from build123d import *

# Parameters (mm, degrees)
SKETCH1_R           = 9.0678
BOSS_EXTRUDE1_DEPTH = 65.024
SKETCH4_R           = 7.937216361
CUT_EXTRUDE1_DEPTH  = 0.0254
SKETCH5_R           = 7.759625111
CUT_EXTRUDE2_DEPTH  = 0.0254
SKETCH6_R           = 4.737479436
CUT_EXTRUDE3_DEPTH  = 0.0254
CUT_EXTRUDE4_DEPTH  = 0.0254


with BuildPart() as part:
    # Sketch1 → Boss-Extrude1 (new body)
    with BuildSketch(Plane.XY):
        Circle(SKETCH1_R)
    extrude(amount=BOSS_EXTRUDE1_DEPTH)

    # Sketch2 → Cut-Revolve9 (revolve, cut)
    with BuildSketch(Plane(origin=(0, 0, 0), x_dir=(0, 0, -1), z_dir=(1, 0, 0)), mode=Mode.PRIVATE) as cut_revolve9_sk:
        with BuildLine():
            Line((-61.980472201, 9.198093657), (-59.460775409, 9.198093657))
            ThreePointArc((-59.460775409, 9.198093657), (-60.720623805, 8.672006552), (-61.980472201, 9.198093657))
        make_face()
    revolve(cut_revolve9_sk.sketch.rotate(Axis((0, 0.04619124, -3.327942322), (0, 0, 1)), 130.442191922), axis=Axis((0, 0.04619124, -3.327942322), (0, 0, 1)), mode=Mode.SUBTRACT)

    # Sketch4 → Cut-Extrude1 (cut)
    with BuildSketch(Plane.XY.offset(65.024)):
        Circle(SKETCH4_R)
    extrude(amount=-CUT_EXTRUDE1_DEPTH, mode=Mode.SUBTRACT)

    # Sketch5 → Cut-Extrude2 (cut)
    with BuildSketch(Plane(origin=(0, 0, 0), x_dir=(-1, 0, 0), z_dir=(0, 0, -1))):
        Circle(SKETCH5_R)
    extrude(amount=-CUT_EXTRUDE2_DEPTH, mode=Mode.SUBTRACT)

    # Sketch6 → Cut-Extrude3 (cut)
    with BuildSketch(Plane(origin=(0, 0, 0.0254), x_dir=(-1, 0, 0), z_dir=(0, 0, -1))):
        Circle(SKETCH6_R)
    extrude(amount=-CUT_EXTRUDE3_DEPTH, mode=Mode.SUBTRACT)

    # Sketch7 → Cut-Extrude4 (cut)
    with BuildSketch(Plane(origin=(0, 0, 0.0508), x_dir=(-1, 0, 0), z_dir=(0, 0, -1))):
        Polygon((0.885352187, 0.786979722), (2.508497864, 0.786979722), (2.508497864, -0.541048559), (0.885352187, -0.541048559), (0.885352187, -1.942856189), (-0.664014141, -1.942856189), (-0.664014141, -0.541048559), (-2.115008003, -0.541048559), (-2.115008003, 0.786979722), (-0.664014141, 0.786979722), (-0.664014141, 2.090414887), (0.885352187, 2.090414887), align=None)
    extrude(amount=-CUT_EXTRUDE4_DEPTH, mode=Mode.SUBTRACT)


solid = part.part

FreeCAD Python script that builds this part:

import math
import FreeCAD as App
import Part
import Sketcher
from FreeCAD import Vector
Q = App.Units.Quantity


def add_polygon(sketch, points):
    """Adds a closed chain of lines whose ends are joined by coincident constraints."""
    first, n = sketch.GeometryCount, len(points)
    for a, b in zip(points, points[1:] + points[:1]):
        sketch.addGeometry(Part.LineSegment(App.Vector(*a, 0), App.Vector(*b, 0)), False)
    for i in range(n):
        sketch.addConstraint(Sketcher.Constraint("Coincident", first + i, 2, first + (i + 1) % n, 1))

doc = App.newDocument("Part")
params = doc.addObject("Spreadsheet::Sheet", "Params")
for row, (alias, value) in enumerate([
    ("sketch1_diameter", "0.714 in"),
    ("pad1_length", "2.56 in"),
    ("groove_angle", "360 deg"),
    ("pocket1_length", "0.001 in"),
    ("pocket2_length", "0.001 in"),
    ("pocket3_length", "0.001 in"),
    ("pocket4_length", "0.001 in"),
], start=1):
    params.set(f"A{row}", alias)
    params.set(f"B{row}", "=" + value)
    params.setAlias(f"B{row}", alias)

body = doc.addObject("PartDesign::Body", "Body")

# Sketch on XY plane
sketch1 = body.newObject("Sketcher::SketchObject", "Sketch")
sketch1.AttachmentSupport = (doc.getObject("XY_Plane"), [""])
sketch1.MapMode = "FlatFace"
sketch1.addGeometry(Part.Circle(Vector(0, 0, 0), Vector(0, 0, 1), 9), False)
sketch1.addConstraint([
    Sketcher.Constraint("Coincident", 0, 3, -1, 1),
    Sketcher.Constraint("Diameter", 0, Q("0.714 in")),
])
sketch1.setExpression("Constraints[1]", "Params.sketch1_diameter")
pad1 = body.newObject("PartDesign::Pad", "Pad")
pad1.Profile = sketch1
pad1.setExpression("Length", "Params.pad1_length")

# Sketch on YZ plane
sketch2 = body.newObject("Sketcher::SketchObject", "Sketch001")
sketch2.AttachmentSupport = (doc.getObject("YZ_Plane"), [""])
sketch2.MapMode = "FlatFace"
sketch2.addGeometry([
    Part.LineSegment(Vector(9.2, 59.5, 0), Vector(9.2, 62, 0)),
    Part.ArcOfCircle(Part.Circle(Vector(10.4, 60.7, 0), Vector(0, 0, 1), 1.8), math.radians(135), math.radians(225)),
], False)
sketch2.addGeometry(Part.LineSegment(Vector(0, 59.5, 0), Vector(0, 62, 0)), True)  # axis
sketch2.addConstraint([
    Sketcher.Constraint("Coincident", 0, 1, 1, 2),
    Sketcher.Constraint("Coincident", 1, 1, 0, 2),
    Sketcher.Constraint("Vertical", 0),
    Sketcher.Constraint("Vertical", 2),
    Sketcher.Constraint("Horizontal", 0, 1, 2, 1),
    Sketcher.Constraint("Horizontal", 1, 1, 2, 2),
    Sketcher.Constraint("Radius", 1, 1.771556),
    Sketcher.Constraint("DistanceY", 0, 1, 0, 2, 2.519697),
    Sketcher.Constraint("DistanceX", -1, 1, 2, 1, 0.046191),
    Sketcher.Constraint("DistanceX", 2, 1, 1, 3, 10.397371),
    Sketcher.Constraint("DistanceY", -1, 1, 1, 3, 60.720624),
])
groove = body.newObject("PartDesign::Groove", "Groove")
groove.Profile = sketch2
groove.ReferenceAxis = (sketch2, ["Axis0"])
groove.setExpression("Angle", "Params.groove_angle")

# Sketch on XY plane
sketch3 = body.newObject("Sketcher::SketchObject", "Sketch002")
sketch3.AttachmentSupport = (doc.getObject("XY_Plane"), [""])
sketch3.MapMode = "FlatFace"
sketch3.AttachmentOffset = App.Placement(Vector(0, 0, 2.56 * 25.4), App.Rotation())
sketch3.addGeometry(Part.Circle(Vector(0, 0, 0), Vector(0, 0, 1), 8), False)
sketch3.addConstraint([
    Sketcher.Constraint("Coincident", 0, 3, -1, 1),
    Sketcher.Constraint("Diameter", 0, 15.874433),
])
pocket1 = body.newObject("PartDesign::Pocket", "Pocket")
pocket1.Profile = sketch3
pocket1.setExpression("Length", "Params.pocket1_length")

# Sketch on XY plane
sketch4 = body.newObject("Sketcher::SketchObject", "Sketch003")
sketch4.AttachmentSupport = (doc.getObject("XY_Plane"), [""])
sketch4.MapMode = "FlatFace"
sketch4.addGeometry(Part.Circle(Vector(0, 0, 0), Vector(0, 0, 1), 8), False)
sketch4.addConstraint([
    Sketcher.Constraint("Coincident", 0, 3, -1, 1),
    Sketcher.Constraint("Diameter", 0, 15.51925),
])
pocket2 = body.newObject("PartDesign::Pocket", "Pocket001")
pocket2.Profile = sketch4
pocket2.setExpression("Length", "Params.pocket2_length")
pocket2.Reversed = True

# Sketch on XY plane
sketch5 = body.newObject("Sketcher::SketchObject", "Sketch004")
sketch5.AttachmentSupport = (doc.getObject("XY_Plane"), [""])
sketch5.MapMode = "FlatFace"
sketch5.AttachmentOffset = App.Placement(Vector(0, 0, 0.001 * 25.4), App.Rotation())
sketch5.addGeometry(Part.Circle(Vector(0, 0, 0), Vector(0, 0, 1), 4.7), False)
sketch5.addConstraint([
    Sketcher.Constraint("Coincident", 0, 3, -1, 1),
    Sketcher.Constraint("Diameter", 0, 9.474959),
])
pocket3 = body.newObject("PartDesign::Pocket", "Pocket002")
pocket3.Profile = sketch5
pocket3.setExpression("Length", "Params.pocket3_length")
pocket3.Reversed = True

# Sketch on XY plane
sketch6 = body.newObject("Sketcher::SketchObject", "Sketch005")
sketch6.AttachmentSupport = (doc.getObject("XY_Plane"), [""])
sketch6.MapMode = "FlatFace"
sketch6.AttachmentOffset = App.Placement(Vector(0, 0, 0.002 * 25.4), App.Rotation())
add_polygon(sketch6, [(-2.5, 0.8), (-0.9, 0.8), (-0.9, 2.1), (0.7, 2.1), (0.7, 0.8), (2.1, 0.8), (2.1, -0.5), (0.7, -0.5), (0.7, -1.9), (-0.9, -1.9), (-0.9, -0.5), (-2.5, -0.5)])  # lines 0-11
sketch6.addConstraint([
    Sketcher.Constraint("Horizontal", 0),
    Sketcher.Constraint("Vertical", 1),
    Sketcher.Constraint("Horizontal", 2),
    Sketcher.Constraint("Vertical", 3),
    Sketcher.Constraint("Horizontal", 4),
    Sketcher.Constraint("Vertical", 5),
    Sketcher.Constraint("Horizontal", 6),
    Sketcher.Constraint("Vertical", 7),
    Sketcher.Constraint("Horizontal", 8),
    Sketcher.Constraint("Vertical", 9),
    Sketcher.Constraint("Horizontal", 10),
    Sketcher.Constraint("Vertical", 11),
    Sketcher.Constraint("Horizontal", 0, 2, 3, 2),
    Sketcher.Constraint("Horizontal", 6, 2, 9, 2),
    Sketcher.Constraint("Vertical", 3, 2, 6, 2),
    Sketcher.Constraint("Vertical", 1, 2, 8, 2),
    Sketcher.Constraint("DistanceY", 5, 2, 5, 1, 1.328028),
    Sketcher.Constraint("DistanceX", 0, 1, 0, 2, 1.623146),
    Sketcher.Constraint("DistanceX", 2, 1, 2, 2, 1.549366),
    Sketcher.Constraint("DistanceX", 4, 1, 4, 2, 1.450994),
    Sketcher.Constraint("DistanceY", 1, 1, 1, 2, 1.303435),
    Sketcher.Constraint("DistanceY", 7, 2, 7, 1, 1.401808),
    Sketcher.Constraint("DistanceY", -1, 1, 0, 2, 0.78698),
    Sketcher.Constraint("DistanceX", -1, 1, 4, 2, 2.115008),
])
pocket4 = body.newObject("PartDesign::Pocket", "Pocket003")
pocket4.Profile = sketch6
pocket4.setExpression("Length", "Params.pocket4_length")
pocket4.Reversed = True

doc.recompute()
